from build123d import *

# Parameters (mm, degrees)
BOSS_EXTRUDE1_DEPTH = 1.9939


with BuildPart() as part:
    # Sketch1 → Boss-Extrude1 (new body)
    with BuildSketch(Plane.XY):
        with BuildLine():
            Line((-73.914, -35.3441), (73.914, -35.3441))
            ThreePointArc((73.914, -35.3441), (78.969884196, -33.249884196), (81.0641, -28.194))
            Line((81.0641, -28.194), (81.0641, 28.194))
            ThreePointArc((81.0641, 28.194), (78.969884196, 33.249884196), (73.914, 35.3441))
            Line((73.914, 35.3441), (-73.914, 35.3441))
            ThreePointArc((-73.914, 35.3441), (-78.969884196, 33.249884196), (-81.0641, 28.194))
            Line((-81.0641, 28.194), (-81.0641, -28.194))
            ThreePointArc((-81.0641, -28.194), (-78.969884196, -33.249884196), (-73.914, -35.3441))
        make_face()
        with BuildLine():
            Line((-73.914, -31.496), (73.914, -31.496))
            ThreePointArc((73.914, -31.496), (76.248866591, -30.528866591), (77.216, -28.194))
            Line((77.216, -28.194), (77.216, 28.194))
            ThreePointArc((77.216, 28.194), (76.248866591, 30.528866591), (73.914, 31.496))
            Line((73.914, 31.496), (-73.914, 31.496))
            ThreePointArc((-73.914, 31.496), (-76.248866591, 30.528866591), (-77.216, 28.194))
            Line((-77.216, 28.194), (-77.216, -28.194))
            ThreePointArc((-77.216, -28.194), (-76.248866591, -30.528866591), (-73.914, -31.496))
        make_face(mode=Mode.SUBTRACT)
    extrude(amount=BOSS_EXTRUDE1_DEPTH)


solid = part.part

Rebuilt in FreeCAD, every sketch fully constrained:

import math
import FreeCAD as App
import Part
import Sketcher
from FreeCAD import Vector
Q = App.Units.Quantity

doc = App.newDocument("Part")
body = doc.addObject("PartDesign::Body", "Body")

sketch1 = body.newObject("Sketcher::SketchObject", "Sketch")
sketch1.AttachmentSupport = (doc.getObject("XY_Plane"), [""])
sketch1.MapMode = "FlatFace"
sketch1.addGeometry([
    Part.LineSegment(Vector(-73.9, -35.3, 0), Vector(73.9, -35.3, 0)),
    Part.ArcOfCircle(Part.Circle(Vector(73.9, -28.2, 0), Vector(0, 0, 1), 7.2), math.radians(-90), math.radians(0)),
    Part.LineSegment(Vector(81.1, -28.2, 0), Vector(81.1, 28.2, 0)),
    Part.ArcOfCircle(Part.Circle(Vector(73.9, 28.2, 0), Vector(0, 0, 1), 7.2), math.radians(0), math.radians(90)),
    Part.LineSegment(Vector(73.9, 35.3, 0), Vector(-73.9, 35.3, 0)),
    Part.ArcOfCircle(Part.Circle(Vector(-73.9, 28.2, 0), Vector(0, 0, 1), 7.2), math.radians(90), math.radians(180)),
    Part.LineSegment(Vector(-81.1, 28.2, 0), Vector(-81.1, -28.2, 0)),
    Part.ArcOfCircle(Part.Circle(Vector(-73.9, -28.2, 0), Vector(0, 0, 1), 7.2), math.radians(-180), math.radians(-90)),
    Part.LineSegment(Vector(73.9, -31.5, 0), Vector(-73.9, -31.5, 0)),
    Part.ArcOfCircle(Part.Circle(Vector(-73.9, -28.2, 0), Vector(0, 0, 1), 3.3), math.radians(-180), math.radians(-90)),
    Part.LineSegment(Vector(-77.2, -28.2, 0), Vector(-77.2, 28.2, 0)),
    Part.ArcOfCircle(Part.Circle(Vector(-73.9, 28.2, 0), Vector(0, 0, 1), 3.3), math.radians(90), math.radians(180)),
    Part.LineSegment(Vector(-73.9, 31.5, 0), Vector(73.9, 31.5, 0)),
    Part.ArcOfCircle(Part.Circle(Vector(73.9, 28.2, 0), Vector(0, 0, 1), 3.3), math.radians(0), math.radians(90)),
    Part.LineSegment(Vector(77.2, 28.2, 0), Vector(77.2, -28.2, 0)),
    Part.ArcOfCircle(Part.Circle(Vector(73.9, -28.2, 0), Vector(0, 0, 1), 3.3), math.radians(-90), math.radians(0)),
], False)
sketch1.addConstraint([
    Sketcher.Constraint("Tangent", 0, 2, 1, 1),
    Sketcher.Constraint("Tangent", 1, 2, 2, 1),
    Sketcher.Constraint("Tangent", 2, 2, 3, 1),
    Sketcher.Constraint("Tangent", 3, 2, 4, 1),
    Sketcher.Constraint("Tangent", 4, 2, 5, 1),
    Sketcher.Constraint("Tangent", 5, 2, 6, 1),
    Sketcher.Constraint("Tangent", 6, 2, 7, 1),
    Sketcher.Constraint("Tangent", 7, 2, 0, 1),
    Sketcher.Constraint("Tangent", 8, 2, 9, 2),
    Sketcher.Constraint("Tangent", 9, 1, 10, 1),
    Sketcher.Constraint("Tangent", 10, 2, 11, 2),
    Sketcher.Constraint("Tangent", 11, 1, 12, 1),
    Sketcher.Constraint("Tangent", 12, 2, 13, 2),
    Sketcher.Constraint("Tangent", 13, 1, 14, 1),
    Sketcher.Constraint("Tangent", 14, 2, 15, 2),
    Sketcher.Constraint("Tangent", 15, 1, 8, 1),
    Sketcher.Constraint("Horizontal", 0),
    Sketcher.Constraint("Vertical", 2),
    Sketcher.Constraint("Horizontal", 4),
    Sketcher.Constraint("Vertical", 6),
    Sketcher.Constraint("Horizontal", 8),
    Sketcher.Constraint("Vertical", 10),
    Sketcher.Constraint("Horizontal", 12),
    Sketcher.Constraint("Vertical", 14),
    Sketcher.Constraint("Coincident", 9, 3, 7, 3),
    Sketcher.Constraint("Coincident", 11, 3, 5, 3),
    Sketcher.Constraint("Coincident", 13, 3, 3, 3),
    Sketcher.Constraint("Equal", 1, 3),
    Sketcher.Constraint("Equal", 3, 5),
    Sketcher.Constraint("Equal", 5, 7),
    Sketcher.Constraint("Equal", 13, 15),
    Sketcher.Constraint("Symmetric", 1, 3, 5, 3, -1, 1),
    Sketcher.Constraint("Radius", 9, Q("0.13 in")),
    Sketcher.Constraint("DistanceX", 0, 1, 0, 2, Q("5.82 in")),
    Sketcher.Constraint("DistanceY", 2, 1, 2, 2, Q("2.22 in")),
    Sketcher.Constraint("Radius", 1, Q("0.2815 in")),
])
pad1 = body.newObject("PartDesign::Pad", "Pad")
pad1.Profile = sketch1
pad1.Length = Q("0.0785 in")

doc.recompute()
